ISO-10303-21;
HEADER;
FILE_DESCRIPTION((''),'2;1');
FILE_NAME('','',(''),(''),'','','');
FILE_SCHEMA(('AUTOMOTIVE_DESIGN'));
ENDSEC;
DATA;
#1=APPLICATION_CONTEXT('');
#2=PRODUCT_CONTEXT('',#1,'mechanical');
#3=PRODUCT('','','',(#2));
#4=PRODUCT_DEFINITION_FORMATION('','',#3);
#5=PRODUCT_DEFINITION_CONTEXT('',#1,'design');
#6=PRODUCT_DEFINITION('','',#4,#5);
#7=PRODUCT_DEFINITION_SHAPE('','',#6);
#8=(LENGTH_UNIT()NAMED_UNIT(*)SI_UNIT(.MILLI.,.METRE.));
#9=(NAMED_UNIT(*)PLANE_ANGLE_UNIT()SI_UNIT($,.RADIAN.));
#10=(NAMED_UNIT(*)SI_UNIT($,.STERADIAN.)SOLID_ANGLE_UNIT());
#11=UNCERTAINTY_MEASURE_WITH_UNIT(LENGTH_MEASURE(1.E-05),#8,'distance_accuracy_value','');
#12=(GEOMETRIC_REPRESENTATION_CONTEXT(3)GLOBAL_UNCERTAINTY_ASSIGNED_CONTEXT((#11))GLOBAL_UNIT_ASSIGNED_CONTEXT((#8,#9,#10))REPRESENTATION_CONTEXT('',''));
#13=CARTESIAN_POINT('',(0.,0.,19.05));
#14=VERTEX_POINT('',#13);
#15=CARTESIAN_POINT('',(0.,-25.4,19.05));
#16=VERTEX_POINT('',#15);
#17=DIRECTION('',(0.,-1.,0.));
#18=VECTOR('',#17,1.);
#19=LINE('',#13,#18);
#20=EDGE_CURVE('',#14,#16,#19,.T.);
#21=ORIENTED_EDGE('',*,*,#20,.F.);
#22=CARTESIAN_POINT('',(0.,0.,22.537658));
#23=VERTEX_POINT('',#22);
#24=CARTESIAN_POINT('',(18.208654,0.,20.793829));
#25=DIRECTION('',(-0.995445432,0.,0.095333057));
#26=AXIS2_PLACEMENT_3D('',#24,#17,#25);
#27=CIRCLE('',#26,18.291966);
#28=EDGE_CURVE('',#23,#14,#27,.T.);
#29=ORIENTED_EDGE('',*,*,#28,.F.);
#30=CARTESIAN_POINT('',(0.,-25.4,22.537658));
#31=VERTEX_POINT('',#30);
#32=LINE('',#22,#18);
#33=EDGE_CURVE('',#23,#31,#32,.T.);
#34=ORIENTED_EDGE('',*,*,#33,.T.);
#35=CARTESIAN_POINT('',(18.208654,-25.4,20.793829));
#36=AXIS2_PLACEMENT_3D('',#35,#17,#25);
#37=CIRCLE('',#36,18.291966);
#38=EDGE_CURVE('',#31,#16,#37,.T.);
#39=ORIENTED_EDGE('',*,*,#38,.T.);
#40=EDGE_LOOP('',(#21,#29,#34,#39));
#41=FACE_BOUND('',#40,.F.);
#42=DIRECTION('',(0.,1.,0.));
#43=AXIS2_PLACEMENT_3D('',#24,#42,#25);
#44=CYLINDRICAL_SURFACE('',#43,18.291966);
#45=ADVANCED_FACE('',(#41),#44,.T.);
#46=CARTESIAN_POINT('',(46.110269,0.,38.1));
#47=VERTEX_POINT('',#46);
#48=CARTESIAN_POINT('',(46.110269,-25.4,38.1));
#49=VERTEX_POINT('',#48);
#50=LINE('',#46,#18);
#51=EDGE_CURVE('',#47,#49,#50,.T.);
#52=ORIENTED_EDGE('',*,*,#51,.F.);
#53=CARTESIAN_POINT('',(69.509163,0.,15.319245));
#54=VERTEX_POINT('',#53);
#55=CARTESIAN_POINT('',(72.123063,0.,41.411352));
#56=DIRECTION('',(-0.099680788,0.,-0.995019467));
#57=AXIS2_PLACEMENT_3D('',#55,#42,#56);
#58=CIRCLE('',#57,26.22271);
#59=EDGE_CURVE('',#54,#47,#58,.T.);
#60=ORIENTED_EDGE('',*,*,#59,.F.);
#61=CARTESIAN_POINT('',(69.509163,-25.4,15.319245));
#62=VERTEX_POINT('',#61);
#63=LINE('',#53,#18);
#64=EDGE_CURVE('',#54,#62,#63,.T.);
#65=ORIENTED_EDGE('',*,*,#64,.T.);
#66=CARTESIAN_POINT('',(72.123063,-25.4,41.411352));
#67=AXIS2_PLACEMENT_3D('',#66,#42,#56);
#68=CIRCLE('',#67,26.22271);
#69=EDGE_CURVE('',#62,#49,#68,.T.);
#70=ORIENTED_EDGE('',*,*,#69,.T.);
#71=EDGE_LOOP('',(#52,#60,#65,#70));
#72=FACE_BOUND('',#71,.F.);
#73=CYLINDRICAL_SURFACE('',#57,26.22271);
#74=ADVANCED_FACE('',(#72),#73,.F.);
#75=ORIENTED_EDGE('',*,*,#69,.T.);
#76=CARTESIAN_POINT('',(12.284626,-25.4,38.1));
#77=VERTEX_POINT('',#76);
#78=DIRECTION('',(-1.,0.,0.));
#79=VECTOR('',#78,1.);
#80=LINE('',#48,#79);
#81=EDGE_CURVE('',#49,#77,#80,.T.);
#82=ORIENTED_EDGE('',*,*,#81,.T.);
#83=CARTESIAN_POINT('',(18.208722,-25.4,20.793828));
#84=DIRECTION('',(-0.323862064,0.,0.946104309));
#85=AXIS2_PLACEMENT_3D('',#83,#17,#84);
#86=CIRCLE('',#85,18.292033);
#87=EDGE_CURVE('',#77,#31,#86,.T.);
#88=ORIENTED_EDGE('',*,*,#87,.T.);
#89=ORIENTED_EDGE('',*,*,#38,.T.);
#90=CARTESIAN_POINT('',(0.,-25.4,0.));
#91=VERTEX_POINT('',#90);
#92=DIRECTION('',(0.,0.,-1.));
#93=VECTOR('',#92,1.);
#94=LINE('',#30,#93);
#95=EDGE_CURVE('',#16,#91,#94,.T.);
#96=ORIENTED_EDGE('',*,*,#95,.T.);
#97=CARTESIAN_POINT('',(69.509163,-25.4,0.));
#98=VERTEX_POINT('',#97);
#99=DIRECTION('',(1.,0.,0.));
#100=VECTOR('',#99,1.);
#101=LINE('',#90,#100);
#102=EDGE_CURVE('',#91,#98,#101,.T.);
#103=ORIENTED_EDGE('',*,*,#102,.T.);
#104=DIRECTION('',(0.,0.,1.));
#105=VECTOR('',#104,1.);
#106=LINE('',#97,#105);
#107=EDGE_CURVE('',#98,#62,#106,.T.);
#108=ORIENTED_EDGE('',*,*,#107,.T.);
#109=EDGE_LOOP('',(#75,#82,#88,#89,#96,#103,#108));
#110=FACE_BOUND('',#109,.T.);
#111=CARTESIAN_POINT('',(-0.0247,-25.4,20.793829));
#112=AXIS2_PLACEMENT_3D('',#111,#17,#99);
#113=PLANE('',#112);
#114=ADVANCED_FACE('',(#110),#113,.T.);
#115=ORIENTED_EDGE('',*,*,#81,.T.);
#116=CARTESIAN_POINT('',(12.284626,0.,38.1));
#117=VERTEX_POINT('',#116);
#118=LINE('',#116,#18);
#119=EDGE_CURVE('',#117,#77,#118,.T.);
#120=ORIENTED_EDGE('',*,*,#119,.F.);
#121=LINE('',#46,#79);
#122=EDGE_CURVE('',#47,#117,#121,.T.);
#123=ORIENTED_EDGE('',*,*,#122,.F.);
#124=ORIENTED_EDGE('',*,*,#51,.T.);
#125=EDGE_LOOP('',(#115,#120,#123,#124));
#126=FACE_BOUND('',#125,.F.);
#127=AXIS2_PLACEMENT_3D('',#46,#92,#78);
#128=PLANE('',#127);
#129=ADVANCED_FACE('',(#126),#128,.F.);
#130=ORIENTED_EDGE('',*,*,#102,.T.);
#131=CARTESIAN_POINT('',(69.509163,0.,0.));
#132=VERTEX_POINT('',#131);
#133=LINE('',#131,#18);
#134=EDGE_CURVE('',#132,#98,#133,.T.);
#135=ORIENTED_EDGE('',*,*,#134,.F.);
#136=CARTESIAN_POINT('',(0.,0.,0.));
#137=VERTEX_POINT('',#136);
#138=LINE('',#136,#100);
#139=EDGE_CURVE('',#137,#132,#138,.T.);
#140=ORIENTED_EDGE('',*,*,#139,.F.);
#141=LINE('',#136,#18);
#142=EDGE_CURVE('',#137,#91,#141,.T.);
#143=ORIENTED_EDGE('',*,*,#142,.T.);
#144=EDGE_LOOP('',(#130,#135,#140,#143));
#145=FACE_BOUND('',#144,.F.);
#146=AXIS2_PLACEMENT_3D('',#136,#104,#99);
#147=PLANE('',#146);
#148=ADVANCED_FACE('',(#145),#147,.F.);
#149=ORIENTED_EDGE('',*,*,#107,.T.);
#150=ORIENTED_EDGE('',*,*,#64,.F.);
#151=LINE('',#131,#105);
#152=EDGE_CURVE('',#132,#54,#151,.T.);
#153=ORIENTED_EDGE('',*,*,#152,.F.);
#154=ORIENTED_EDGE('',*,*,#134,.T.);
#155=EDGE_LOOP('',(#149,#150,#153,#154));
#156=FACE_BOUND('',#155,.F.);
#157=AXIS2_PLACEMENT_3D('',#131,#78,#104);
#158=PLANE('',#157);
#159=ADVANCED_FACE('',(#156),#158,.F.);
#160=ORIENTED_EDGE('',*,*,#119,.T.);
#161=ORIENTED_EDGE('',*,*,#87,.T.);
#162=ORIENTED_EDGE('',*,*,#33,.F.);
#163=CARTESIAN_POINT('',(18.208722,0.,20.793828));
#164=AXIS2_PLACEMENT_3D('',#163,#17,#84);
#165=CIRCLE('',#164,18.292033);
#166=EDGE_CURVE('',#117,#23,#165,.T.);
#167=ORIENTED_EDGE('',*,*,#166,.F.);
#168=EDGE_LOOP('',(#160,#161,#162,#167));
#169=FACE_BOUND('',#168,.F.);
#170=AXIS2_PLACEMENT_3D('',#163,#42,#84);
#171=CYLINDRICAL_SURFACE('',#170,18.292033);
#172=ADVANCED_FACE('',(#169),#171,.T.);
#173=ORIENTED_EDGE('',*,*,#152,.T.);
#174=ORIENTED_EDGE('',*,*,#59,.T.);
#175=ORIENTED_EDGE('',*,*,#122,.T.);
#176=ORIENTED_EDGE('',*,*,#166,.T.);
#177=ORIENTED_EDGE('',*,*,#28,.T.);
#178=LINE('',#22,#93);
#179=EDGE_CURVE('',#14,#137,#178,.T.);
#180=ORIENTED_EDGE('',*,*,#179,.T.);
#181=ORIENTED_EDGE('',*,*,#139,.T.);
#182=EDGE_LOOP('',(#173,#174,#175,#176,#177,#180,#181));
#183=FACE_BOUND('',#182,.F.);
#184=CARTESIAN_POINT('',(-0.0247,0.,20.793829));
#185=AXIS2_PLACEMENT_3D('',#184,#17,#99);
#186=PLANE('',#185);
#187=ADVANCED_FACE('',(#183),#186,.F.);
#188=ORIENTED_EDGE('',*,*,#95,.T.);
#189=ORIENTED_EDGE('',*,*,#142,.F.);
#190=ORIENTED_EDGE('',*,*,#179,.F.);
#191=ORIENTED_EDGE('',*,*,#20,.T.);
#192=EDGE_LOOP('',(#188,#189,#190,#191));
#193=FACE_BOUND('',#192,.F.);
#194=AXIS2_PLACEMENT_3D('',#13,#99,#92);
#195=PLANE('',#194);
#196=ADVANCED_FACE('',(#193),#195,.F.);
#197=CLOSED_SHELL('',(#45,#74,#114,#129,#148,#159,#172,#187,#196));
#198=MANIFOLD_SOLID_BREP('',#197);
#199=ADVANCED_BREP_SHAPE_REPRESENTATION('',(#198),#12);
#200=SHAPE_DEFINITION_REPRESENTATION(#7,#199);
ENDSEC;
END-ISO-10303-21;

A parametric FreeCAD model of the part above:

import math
import FreeCAD as App
import Part
import Sketcher
Q = App.Units.Quantity

doc = App.newDocument("Part")
body = doc.addObject("PartDesign::Body", "Body")

# Sketch on XZ plane
sketch1 = doc.addObject("Sketcher::SketchObject", "Sketch")
body.addObject(sketch1)
sketch1.AttachmentSupport = (doc.XZ_Plane, [""])
sketch1.MapMode = "FlatFace"
sketch1.addGeometry([
    Part.ArcOfCircle(Part.Circle(App.Vector(18.208654, 20.793829, 0), App.Vector(0, 0, 1), 18.291966), math.radians(174.52951), math.radians(185.47049)),  # 0
    Part.LineSegment(App.Vector(0, 19.05, 0), App.Vector(0, 0, 0)),  # 1
    Part.LineSegment(App.Vector(0, 0, 0), App.Vector(69.509163, 0, 0)),  # 2
    Part.LineSegment(App.Vector(69.509163, 0, 0), App.Vector(69.509163, 15.319245, 0)),  # 3
    Part.ArcOfCircle(Part.Circle(App.Vector(72.123063, 41.411352, 0), App.Vector(0, 0, 1), 26.22271), math.radians(-172.745434), math.radians(-95.720789)),  # 4
    Part.LineSegment(App.Vector(46.110269, 38.1, 0), App.Vector(12.284626, 38.1, 0)),  # 5
    Part.ArcOfCircle(Part.Circle(App.Vector(18.208722, 20.793828, 0), App.Vector(0, 0, 1), 18.292033), math.radians(108.896648), math.radians(174.529529)),  # 6
], False)
sketch1.addConstraint([
    Sketcher.Constraint("Coincident", 0, 2, 1, 1),
    Sketcher.Constraint("Coincident", 1, 2, 2, 1),
    Sketcher.Constraint("Coincident", 2, 2, 3, 1),
    Sketcher.Constraint("Coincident", 3, 2, 4, 2),
    Sketcher.Constraint("Coincident", 4, 1, 5, 1),
    Sketcher.Constraint("Coincident", 5, 2, 6, 1),
    Sketcher.Constraint("Coincident", 6, 2, 0, 1),
    Sketcher.Constraint("Vertical", 1),
    Sketcher.Constraint("Horizontal", 2),
    Sketcher.Constraint("Vertical", 3),
    Sketcher.Constraint("Horizontal", 5),
    Sketcher.Constraint("Coincident", 1, 2, -1, 1),
    Sketcher.Constraint("PointOnObject", 6, 2, -2),
    Sketcher.Constraint("DistanceY", 1, 2, 1, 1, Q("0.75 in")),
    Sketcher.Constraint("DistanceY", -1, 1, 4, 1, Q("1.5 in")),
    Sketcher.Constraint("Radius", 4, 26.22271),
    Sketcher.Constraint("Radius", 0, 18.291966),
    Sketcher.Constraint("Radius", 6, 18.292033),
    Sketcher.Constraint("DistanceX", 2, 2, 4, 3, 2.6139),
    Sketcher.Constraint("DistanceX", 2, 1, 2, 2, 69.509163),
    Sketcher.Constraint("DistanceX", 5, 2, 5, 1, 33.825643),
    Sketcher.Constraint("DistanceY", 3, 1, 3, 2, 15.319245),
    Sketcher.Constraint("DistanceY", -1, 1, 0, 3, 20.793829),
])
pad1 = doc.addObject("PartDesign::Pad", "Pad")
body.addObject(pad1)
pad1.Profile = sketch1
pad1.Length = Q("1 in")

doc.recompute()
